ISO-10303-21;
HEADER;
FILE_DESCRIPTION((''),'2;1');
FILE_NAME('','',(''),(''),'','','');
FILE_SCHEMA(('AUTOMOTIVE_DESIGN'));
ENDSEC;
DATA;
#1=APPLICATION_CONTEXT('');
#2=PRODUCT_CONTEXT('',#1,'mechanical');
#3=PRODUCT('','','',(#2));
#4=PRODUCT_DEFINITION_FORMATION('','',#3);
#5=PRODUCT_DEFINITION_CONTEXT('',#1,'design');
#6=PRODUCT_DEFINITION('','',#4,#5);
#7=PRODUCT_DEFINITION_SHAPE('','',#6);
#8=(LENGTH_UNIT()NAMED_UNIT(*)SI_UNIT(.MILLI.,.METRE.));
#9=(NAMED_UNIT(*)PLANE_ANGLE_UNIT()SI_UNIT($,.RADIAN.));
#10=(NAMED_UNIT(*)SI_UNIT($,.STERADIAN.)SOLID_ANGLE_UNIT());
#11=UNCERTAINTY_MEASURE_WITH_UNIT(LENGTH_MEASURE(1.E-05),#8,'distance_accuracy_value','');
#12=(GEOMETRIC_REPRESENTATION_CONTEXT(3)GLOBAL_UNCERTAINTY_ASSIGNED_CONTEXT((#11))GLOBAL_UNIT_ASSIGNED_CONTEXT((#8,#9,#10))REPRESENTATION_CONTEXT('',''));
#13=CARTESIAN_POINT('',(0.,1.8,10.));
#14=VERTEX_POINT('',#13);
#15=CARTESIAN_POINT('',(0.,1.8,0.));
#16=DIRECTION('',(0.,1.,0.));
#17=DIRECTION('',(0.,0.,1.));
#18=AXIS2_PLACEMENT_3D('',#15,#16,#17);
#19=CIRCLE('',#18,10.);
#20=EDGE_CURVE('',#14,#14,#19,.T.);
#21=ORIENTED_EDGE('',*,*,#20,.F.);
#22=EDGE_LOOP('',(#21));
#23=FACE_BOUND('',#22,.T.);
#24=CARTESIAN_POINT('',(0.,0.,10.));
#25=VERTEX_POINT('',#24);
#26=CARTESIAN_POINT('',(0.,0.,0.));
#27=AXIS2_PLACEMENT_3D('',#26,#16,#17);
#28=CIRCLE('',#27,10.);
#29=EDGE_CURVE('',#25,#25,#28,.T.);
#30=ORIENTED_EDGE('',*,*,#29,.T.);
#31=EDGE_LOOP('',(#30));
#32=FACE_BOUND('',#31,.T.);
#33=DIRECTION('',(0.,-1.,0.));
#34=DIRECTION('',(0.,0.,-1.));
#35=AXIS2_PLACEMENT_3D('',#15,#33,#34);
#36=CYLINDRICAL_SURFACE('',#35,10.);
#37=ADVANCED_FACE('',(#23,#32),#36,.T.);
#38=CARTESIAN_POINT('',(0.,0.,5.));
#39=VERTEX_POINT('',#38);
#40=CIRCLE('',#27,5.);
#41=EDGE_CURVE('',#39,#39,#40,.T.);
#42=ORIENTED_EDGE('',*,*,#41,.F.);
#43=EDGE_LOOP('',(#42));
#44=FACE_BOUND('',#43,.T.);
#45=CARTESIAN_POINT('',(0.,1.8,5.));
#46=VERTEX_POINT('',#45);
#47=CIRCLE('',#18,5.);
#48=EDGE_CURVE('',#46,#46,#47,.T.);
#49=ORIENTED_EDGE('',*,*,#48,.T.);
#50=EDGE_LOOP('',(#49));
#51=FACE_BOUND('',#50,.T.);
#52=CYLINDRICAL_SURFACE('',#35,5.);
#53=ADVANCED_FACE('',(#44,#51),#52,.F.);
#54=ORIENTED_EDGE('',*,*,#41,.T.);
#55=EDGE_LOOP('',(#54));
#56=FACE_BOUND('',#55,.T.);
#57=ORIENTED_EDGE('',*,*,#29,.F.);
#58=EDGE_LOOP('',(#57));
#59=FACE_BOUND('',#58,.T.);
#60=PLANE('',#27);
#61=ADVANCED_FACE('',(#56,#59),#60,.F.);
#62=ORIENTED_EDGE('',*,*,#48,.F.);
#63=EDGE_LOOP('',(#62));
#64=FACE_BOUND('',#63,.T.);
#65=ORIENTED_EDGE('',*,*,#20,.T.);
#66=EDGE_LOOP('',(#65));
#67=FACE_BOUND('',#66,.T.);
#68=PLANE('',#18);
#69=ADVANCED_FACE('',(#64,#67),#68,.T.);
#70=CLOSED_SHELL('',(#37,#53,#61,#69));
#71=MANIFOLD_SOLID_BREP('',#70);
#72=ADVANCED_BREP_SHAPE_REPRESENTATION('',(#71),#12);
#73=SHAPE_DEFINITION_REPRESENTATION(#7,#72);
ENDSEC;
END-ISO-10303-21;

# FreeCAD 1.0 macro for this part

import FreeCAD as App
import Part
import Sketcher
from FreeCAD import Vector
Q = App.Units.Quantity

doc = App.newDocument("Part")
body = doc.addObject("PartDesign::Body", "Body")

# Sketch on XZ plane
sketch1 = body.newObject("Sketcher::SketchObject", "Sketch")
sketch1.AttachmentSupport = (doc.getObject("XZ_Plane"), [""])
sketch1.MapMode = "FlatFace"
sketch1.addGeometry([
    Part.Circle(Vector(0, 0, 0), Vector(0, 0, 1), 10),
    Part.Circle(Vector(0, 0, 0), Vector(0, 0, 1), 5),
], False)
sketch1.addConstraint([
    Sketcher.Constraint("Coincident", 0, 3, -1, 1),
    Sketcher.Constraint("Coincident", 1, 3, -1, 1),
    Sketcher.Constraint("Diameter", 0, Q("20 mm")),
    Sketcher.Constraint("Diameter", 1, Q("10 mm")),
])
pad1 = body.newObject("PartDesign::Pad", "Pad")
pad1.Profile = sketch1
pad1.Length = 1.8
pad1.Reversed = True

doc.recompute()
